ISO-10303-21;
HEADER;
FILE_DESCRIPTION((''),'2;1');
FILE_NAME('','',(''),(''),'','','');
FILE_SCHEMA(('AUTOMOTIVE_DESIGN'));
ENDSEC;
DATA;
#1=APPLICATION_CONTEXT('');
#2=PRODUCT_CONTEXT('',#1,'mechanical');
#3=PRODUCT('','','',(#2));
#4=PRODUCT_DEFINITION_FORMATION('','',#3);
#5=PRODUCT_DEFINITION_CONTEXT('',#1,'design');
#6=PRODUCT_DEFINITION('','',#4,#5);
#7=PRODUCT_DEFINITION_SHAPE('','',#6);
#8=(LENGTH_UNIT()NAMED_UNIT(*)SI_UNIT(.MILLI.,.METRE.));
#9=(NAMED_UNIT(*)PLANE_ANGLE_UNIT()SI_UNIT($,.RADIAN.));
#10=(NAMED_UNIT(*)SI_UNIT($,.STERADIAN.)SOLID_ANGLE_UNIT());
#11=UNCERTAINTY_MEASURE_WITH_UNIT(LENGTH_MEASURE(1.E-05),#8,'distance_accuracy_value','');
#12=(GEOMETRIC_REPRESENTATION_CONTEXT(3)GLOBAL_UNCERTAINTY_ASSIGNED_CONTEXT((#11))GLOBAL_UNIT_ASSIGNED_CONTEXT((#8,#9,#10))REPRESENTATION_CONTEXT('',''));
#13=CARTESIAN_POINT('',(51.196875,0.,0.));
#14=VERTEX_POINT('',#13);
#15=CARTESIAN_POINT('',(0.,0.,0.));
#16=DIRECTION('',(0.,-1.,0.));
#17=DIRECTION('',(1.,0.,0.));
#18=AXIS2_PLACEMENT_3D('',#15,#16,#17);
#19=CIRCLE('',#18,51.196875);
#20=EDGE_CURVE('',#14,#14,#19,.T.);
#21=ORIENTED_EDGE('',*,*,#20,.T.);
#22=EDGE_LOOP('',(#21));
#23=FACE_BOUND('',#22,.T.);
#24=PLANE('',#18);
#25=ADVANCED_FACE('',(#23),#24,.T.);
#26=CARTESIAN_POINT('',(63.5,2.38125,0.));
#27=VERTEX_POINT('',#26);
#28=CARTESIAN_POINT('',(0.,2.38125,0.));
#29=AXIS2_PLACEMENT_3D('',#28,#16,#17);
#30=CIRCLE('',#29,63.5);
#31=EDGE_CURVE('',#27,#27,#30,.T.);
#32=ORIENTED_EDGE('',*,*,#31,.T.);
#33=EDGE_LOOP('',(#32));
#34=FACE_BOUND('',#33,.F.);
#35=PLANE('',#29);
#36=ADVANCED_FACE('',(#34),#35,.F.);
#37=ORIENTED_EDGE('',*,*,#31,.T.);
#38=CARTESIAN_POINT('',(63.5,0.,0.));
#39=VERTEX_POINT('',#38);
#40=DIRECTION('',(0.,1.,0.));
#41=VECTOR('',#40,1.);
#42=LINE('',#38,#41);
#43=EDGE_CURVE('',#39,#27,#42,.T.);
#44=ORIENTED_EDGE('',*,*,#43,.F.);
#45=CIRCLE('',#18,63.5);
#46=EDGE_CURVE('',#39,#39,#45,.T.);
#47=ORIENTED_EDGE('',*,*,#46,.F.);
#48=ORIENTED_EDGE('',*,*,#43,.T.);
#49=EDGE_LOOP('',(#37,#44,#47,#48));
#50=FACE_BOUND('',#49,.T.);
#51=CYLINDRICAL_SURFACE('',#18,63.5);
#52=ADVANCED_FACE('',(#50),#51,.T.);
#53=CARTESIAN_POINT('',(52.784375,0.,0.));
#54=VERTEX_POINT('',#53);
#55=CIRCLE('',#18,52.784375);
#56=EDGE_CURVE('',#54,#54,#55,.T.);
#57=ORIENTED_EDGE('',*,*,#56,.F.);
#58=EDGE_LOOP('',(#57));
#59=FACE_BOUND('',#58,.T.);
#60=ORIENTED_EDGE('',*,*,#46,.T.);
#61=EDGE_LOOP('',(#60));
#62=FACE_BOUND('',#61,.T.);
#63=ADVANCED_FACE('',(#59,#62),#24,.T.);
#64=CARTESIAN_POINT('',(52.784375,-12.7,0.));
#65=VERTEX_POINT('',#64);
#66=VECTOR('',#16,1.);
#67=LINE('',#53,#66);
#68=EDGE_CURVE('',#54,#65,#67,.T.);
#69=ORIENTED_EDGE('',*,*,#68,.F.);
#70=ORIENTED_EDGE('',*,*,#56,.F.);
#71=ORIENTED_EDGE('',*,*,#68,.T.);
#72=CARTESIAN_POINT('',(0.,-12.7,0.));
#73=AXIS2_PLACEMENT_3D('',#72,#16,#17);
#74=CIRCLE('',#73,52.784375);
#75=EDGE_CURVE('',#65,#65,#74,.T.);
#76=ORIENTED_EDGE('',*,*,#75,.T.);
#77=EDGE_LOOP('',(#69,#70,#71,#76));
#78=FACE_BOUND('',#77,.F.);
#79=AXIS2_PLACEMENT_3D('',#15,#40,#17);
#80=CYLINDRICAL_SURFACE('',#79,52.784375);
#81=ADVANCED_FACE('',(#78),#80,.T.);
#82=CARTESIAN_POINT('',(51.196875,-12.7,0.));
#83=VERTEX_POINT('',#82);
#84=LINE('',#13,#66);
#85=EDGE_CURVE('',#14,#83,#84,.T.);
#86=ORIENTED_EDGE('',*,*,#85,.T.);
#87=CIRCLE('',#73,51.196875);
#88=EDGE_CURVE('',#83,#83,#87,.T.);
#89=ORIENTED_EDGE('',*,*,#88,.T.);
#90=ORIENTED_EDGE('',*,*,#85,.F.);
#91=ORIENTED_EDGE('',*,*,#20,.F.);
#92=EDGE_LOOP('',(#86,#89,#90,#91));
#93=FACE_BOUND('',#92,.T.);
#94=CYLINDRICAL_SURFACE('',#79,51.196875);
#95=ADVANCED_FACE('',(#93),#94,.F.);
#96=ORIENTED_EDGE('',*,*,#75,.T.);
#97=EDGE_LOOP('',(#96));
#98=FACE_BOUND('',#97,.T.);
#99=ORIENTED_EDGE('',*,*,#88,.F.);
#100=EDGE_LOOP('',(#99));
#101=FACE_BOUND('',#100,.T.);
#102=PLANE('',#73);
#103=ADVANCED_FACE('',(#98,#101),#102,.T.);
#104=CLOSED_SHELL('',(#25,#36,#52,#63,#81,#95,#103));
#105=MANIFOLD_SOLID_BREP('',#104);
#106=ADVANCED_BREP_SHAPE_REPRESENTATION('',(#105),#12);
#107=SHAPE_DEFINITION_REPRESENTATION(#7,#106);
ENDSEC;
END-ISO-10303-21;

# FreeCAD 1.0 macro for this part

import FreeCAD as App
import Part
import Sketcher

V = App.Vector
Q = App.Units.Quantity

doc = App.newDocument("Part")
params = doc.addObject("Spreadsheet::Sheet", "Params")
for row, (alias, value) in enumerate([
    ("sketch1_diameter", "4.15625 in"),
    ("sketch1_diameter2", "4.03125 in"),
    ("pad1_length", "0.5 in"),
    ("sketch2_diameter", "5 in"),
    ("pad2_length", "0.09375 in"),
], start=1):
    params.set(f"A{row}", alias)
    params.set(f"B{row}", "=" + value)
    params.setAlias(f"B{row}", alias)

body = doc.addObject("PartDesign::Body", "Body")

# Sketch on XZ plane
sketch1 = body.newObject("Sketcher::SketchObject", "Sketch")
sketch1.AttachmentSupport = (doc.getObject("XZ_Plane"), [""])
sketch1.MapMode = "FlatFace"
sketch1.addGeometry([
    Part.Circle(V(0, 0, 0), V(0, 0, 1), 52.784375),
    Part.Circle(V(0, 0, 0), V(0, 0, 1), 51.196875),
], False)
sketch1.addConstraint([
    Sketcher.Constraint("Coincident", 0, 3, -1, 1),
    Sketcher.Constraint("Coincident", 1, 3, -1, 1),
    Sketcher.Constraint("Diameter", 0, Q("4.15625 in")),
    Sketcher.Constraint("Diameter", 1, Q("4.03125 in")),
])
sketch1.setExpression("Constraints[2]", "Params.sketch1_diameter")
sketch1.setExpression("Constraints[3]", "Params.sketch1_diameter2")
pad1 = body.newObject("PartDesign::Pad", "Pad")
pad1.Profile = sketch1
pad1.setExpression("Length", "Params.pad1_length")

# Sketch on XZ plane
sketch2 = body.newObject("Sketcher::SketchObject", "Sketch001")
sketch2.AttachmentSupport = (doc.getObject("XZ_Plane"), [""])
sketch2.MapMode = "FlatFace"
sketch2.addGeometry(Part.Circle(V(0, 0, 0), V(0, 0, 1), 63.5), False)
sketch2.addConstraint([
    Sketcher.Constraint("Coincident", 0, 3, -1, 1),
    Sketcher.Constraint("Diameter", 0, Q("5 in")),
])
sketch2.setExpression("Constraints[1]", "Params.sketch2_diameter")
pad2 = body.newObject("PartDesign::Pad", "Pad001")
pad2.Profile = sketch2
pad2.setExpression("Length", "Params.pad2_length")
pad2.Reversed = True

doc.recompute()
